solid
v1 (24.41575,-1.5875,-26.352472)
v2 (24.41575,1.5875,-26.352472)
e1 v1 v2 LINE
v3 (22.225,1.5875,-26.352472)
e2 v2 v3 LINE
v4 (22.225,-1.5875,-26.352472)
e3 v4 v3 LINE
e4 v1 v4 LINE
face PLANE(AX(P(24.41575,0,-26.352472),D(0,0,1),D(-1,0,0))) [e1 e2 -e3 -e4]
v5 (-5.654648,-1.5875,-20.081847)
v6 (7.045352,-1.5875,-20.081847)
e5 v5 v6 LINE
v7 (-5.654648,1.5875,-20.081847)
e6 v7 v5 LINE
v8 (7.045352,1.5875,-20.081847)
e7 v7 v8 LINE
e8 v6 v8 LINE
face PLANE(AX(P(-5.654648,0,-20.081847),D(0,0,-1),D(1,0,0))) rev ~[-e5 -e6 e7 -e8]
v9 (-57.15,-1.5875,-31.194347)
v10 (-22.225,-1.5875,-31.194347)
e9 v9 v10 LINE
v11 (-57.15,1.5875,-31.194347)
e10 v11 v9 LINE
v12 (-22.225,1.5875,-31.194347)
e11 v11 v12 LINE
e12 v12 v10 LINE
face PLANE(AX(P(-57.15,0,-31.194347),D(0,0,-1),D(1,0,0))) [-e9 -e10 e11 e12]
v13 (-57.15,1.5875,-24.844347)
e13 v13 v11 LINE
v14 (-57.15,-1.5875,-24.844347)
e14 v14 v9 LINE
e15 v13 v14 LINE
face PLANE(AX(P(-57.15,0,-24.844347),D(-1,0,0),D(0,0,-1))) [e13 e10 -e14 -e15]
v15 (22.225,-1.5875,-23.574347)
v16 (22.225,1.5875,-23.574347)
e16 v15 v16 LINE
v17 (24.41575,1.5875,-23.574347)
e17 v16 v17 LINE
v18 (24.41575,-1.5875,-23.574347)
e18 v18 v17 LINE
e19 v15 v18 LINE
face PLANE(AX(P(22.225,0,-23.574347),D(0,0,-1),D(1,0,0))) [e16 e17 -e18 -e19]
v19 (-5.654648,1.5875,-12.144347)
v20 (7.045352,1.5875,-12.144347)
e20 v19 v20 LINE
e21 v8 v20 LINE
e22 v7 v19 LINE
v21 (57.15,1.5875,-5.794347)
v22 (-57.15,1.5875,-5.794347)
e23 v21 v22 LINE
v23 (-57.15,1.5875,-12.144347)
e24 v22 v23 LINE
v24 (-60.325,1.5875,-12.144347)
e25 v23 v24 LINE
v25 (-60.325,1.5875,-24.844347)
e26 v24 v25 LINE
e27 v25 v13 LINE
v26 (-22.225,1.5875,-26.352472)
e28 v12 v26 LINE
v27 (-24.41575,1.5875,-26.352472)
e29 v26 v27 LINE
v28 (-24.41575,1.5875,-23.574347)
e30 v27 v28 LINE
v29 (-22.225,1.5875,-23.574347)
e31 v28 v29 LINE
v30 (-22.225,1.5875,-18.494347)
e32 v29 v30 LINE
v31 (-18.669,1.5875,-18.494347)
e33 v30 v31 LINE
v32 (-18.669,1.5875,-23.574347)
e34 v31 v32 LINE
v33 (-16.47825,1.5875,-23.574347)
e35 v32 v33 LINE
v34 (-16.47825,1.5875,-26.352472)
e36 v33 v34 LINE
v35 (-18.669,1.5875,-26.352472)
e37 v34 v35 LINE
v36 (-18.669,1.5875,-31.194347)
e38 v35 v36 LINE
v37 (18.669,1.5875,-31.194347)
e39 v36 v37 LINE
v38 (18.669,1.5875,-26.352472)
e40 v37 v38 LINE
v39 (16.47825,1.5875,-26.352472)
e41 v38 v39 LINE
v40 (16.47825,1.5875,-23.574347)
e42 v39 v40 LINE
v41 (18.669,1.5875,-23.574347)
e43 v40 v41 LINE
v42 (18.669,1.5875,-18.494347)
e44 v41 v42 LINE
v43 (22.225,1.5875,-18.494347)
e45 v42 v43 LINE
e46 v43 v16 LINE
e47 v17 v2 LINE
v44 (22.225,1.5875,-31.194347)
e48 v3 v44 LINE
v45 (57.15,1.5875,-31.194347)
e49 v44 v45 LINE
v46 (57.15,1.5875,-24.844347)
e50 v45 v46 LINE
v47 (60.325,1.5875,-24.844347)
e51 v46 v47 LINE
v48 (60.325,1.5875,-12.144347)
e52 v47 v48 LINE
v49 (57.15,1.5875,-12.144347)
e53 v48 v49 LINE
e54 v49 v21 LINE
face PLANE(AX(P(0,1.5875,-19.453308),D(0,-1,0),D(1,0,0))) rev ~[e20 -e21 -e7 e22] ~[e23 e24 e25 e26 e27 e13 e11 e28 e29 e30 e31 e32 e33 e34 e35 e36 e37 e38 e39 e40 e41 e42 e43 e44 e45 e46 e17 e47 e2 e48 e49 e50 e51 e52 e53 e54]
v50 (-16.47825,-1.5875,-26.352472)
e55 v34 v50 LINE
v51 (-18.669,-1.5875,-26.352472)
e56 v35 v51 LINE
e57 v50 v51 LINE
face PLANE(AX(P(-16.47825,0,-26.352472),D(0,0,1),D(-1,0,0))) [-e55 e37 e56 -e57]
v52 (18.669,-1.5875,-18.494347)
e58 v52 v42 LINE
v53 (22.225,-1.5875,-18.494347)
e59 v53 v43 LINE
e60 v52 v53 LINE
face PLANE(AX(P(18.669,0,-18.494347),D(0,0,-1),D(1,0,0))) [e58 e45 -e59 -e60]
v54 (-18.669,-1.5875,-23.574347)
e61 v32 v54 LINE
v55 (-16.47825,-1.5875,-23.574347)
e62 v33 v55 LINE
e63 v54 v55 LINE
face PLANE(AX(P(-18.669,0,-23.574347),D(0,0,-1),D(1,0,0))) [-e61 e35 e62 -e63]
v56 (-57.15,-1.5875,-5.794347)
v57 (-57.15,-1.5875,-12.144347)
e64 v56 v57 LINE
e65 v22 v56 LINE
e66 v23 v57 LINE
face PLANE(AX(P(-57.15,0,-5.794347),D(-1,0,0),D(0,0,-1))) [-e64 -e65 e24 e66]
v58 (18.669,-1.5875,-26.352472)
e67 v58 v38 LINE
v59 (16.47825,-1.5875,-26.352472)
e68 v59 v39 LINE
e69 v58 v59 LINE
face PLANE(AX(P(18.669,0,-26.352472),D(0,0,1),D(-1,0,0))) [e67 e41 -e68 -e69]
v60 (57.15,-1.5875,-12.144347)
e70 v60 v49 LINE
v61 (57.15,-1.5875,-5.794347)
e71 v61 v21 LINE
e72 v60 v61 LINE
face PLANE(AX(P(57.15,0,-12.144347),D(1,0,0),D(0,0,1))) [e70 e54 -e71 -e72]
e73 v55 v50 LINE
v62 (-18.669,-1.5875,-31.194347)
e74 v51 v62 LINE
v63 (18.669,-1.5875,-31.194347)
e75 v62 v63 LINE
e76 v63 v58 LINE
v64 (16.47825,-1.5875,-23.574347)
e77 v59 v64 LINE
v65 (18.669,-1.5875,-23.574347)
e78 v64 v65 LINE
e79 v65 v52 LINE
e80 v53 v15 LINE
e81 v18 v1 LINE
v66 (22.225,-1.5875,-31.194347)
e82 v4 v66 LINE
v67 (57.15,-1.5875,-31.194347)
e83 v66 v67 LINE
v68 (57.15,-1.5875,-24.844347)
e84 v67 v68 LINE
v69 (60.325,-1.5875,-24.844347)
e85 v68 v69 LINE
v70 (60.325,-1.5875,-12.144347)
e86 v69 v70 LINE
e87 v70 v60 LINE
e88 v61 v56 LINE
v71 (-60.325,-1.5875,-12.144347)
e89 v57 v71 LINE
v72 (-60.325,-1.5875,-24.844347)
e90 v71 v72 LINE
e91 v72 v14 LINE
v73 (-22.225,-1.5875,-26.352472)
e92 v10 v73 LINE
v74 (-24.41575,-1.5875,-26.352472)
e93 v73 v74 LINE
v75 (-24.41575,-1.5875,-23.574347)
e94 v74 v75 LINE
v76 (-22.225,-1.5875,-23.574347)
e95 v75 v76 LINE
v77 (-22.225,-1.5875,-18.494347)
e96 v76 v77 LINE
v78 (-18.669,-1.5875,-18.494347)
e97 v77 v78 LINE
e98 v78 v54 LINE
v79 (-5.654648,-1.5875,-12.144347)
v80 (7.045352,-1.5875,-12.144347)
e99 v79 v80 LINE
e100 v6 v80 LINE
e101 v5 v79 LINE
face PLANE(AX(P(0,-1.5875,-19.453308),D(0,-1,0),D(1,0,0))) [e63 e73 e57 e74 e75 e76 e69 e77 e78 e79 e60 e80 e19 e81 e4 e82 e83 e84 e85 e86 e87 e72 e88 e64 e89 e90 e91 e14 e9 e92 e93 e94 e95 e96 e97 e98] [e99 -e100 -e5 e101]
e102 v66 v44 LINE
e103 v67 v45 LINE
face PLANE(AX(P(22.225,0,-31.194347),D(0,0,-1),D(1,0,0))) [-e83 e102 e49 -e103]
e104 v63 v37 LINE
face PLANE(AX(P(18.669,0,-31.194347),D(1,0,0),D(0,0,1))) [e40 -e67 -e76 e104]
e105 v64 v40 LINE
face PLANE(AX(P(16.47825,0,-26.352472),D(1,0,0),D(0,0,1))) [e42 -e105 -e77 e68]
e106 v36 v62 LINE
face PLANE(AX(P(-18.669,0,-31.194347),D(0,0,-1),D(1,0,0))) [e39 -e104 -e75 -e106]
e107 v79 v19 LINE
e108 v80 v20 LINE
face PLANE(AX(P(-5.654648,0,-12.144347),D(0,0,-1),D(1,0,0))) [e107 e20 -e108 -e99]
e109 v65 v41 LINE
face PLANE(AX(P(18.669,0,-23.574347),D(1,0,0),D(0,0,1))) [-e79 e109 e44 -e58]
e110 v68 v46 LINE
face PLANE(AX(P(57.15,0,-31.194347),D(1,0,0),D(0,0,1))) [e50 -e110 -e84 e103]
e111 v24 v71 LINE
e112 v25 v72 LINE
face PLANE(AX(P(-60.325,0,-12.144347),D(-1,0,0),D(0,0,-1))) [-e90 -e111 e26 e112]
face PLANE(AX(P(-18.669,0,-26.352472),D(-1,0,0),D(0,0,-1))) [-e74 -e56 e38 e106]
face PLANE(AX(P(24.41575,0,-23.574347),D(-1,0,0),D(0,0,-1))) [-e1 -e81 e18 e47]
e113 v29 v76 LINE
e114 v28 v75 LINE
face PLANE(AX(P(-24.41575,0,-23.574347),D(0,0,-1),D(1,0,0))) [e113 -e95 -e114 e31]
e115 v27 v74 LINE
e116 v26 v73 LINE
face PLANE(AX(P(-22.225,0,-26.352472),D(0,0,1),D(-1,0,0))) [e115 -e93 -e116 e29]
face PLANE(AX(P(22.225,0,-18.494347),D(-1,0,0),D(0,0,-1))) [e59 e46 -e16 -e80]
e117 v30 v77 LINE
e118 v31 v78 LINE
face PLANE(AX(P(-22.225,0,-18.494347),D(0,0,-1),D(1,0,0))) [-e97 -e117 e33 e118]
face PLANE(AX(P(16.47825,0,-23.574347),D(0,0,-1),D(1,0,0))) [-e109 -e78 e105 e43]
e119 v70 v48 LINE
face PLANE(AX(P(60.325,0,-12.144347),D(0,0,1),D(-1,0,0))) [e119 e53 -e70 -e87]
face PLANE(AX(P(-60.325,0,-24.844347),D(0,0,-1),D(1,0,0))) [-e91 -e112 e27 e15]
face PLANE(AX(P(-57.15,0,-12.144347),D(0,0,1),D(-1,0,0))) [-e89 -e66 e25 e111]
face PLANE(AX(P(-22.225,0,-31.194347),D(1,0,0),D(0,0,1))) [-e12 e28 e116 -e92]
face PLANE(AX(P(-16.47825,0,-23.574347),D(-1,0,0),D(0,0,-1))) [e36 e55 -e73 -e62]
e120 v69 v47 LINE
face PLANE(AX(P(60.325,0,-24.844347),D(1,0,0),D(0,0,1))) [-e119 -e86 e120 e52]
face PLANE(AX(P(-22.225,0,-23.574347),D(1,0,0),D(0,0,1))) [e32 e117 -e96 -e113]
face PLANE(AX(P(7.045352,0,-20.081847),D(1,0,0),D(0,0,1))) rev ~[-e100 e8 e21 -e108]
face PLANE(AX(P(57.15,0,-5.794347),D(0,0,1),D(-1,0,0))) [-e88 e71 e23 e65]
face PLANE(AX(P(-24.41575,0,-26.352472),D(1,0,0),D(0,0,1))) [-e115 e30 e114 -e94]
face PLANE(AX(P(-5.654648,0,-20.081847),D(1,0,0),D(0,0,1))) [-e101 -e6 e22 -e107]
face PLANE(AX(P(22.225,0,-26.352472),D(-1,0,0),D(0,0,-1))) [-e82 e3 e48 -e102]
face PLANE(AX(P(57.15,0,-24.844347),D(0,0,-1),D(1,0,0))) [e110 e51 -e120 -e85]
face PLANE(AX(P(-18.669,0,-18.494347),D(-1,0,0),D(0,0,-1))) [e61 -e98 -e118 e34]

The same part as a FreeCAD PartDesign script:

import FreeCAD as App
import Part
import Sketcher

V = App.Vector
Q = App.Units.Quantity


def add_polygon(sketch, points):
    """Adds a closed chain of lines whose ends are joined by coincident constraints."""
    first, n = sketch.GeometryCount, len(points)
    for a, b in zip(points, points[1:] + points[:1]):
        sketch.addGeometry(Part.LineSegment(App.Vector(*a, 0), App.Vector(*b, 0)), False)
    for i in range(n):
        sketch.addConstraint(Sketcher.Constraint("Coincident", first + i, 2, first + (i + 1) % n, 1))

doc = App.newDocument("Part")
body = doc.addObject("PartDesign::Body", "Body")

sketch1 = doc.addObject("Sketcher::SketchObject", "Sketch")
body.addObject(sketch1)
sketch1.AttachmentSupport = (doc.XZ_Plane, [""])
sketch1.MapMode = "FlatFace"
add_polygon(sketch1, [(57.1, -5.8), (-57.1, -5.8), (-57.1, -12.1), (-60.3, -12.1), (-60.3, -24.8), (-57.1, -24.8), (-57.1, -31.2), (-22.2, -31.2), (-22.2, -26.4), (-24.4, -26.4), (-24.4, -23.6), (-22.2, -23.6), (-22.2, -18.5), (-18.7, -18.5), (-18.7, -23.6), (-16.5, -23.6), (-16.5, -26.4), (-18.7, -26.4), (-18.7, -31.2), (18.7, -31.2), (18.7, -26.4), (16.5, -26.4), (16.5, -23.6), (18.7, -23.6), (18.7, -18.5), (22.2, -18.5), (22.2, -23.6), (24.4, -23.6), (24.4, -26.4), (22.2, -26.4), (22.2, -31.2), (57.1, -31.2), (57.1, -24.8), (60.3, -24.8), (60.3, -12.1), (57.1, -12.1)])
add_polygon(sketch1, [(7, -20.1), (-5.7, -20.1), (-5.7, -12.1), (7, -12.1)])
sketch1.addConstraint([
    Sketcher.Constraint("Horizontal", 0),
    Sketcher.Constraint("Vertical", 1),
    Sketcher.Constraint("Horizontal", 2),
    Sketcher.Constraint("Vertical", 3),
    Sketcher.Constraint("Horizontal", 4),
    Sketcher.Constraint("Vertical", 5),
    Sketcher.Constraint("Horizontal", 6),
    Sketcher.Constraint("Vertical", 7),
    Sketcher.Constraint("Horizontal", 8),
    Sketcher.Constraint("Vertical", 9),
    Sketcher.Constraint("Horizontal", 10),
    Sketcher.Constraint("Vertical", 11),
    Sketcher.Constraint("Horizontal", 12),
    Sketcher.Constraint("Vertical", 13),
    Sketcher.Constraint("Horizontal", 14),
    Sketcher.Constraint("Vertical", 15),
    Sketcher.Constraint("Horizontal", 16),
    Sketcher.Constraint("Vertical", 17),
    Sketcher.Constraint("Horizontal", 18),
    Sketcher.Constraint("Vertical", 19),
    Sketcher.Constraint("Horizontal", 20),
    Sketcher.Constraint("Vertical", 21),
    Sketcher.Constraint("Horizontal", 22),
    Sketcher.Constraint("Vertical", 23),
    Sketcher.Constraint("Horizontal", 24),
    Sketcher.Constraint("Vertical", 25),
    Sketcher.Constraint("Horizontal", 26),
    Sketcher.Constraint("Vertical", 27),
    Sketcher.Constraint("Horizontal", 28),
    Sketcher.Constraint("Vertical", 29),
    Sketcher.Constraint("Horizontal", 30),
    Sketcher.Constraint("Vertical", 31),
    Sketcher.Constraint("Horizontal", 32),
    Sketcher.Constraint("Vertical", 33),
    Sketcher.Constraint("Horizontal", 34),
    Sketcher.Constraint("Vertical", 35),
    Sketcher.Constraint("Horizontal", 36),
    Sketcher.Constraint("Vertical", 37),
    Sketcher.Constraint("Horizontal", 38),
    Sketcher.Constraint("Vertical", 39),
    Sketcher.Constraint("Symmetric", 16, 2, 19, 2, -2),
    Sketcher.Constraint("Symmetric", 14, 2, 21, 2, -2),
    Sketcher.Constraint("Symmetric", 12, 2, 23, 2, -2),
    Sketcher.Constraint("Symmetric", 10, 2, 25, 2, -2),
    Sketcher.Constraint("Symmetric", 8, 2, 27, 2, -2),
    Sketcher.Constraint("Symmetric", 6, 2, 29, 2, -2),
    Sketcher.Constraint("Symmetric", 4, 2, 31, 2, -2),
    Sketcher.Constraint("Symmetric", 2, 2, 33, 2, -2),
    Sketcher.Constraint("Horizontal", 10, 2, 13, 2),
    Sketcher.Constraint("Horizontal", 8, 2, 15, 2),
    Sketcher.Constraint("Horizontal", 6, 2, 17, 2),
    Sketcher.Constraint("Horizontal", 34, 2, 37, 2),
    Sketcher.Constraint("Vertical", 1, 2, 4, 2),
    Sketcher.Constraint("Vertical", 7, 2, 10, 2),
    Sketcher.Constraint("Vertical", 13, 2, 16, 2),
    Sketcher.Constraint("Vertical", 31, 2, 34, 2),
    Sketcher.Constraint("Equal", 10, 14),
    Sketcher.Constraint("Equal", 38, 3),
    Sketcher.Constraint("Equal", 1, 5),
    Sketcher.Constraint("DistanceX", 0, 2, 0, 1, Q("4.5 in")),
    Sketcher.Constraint("DistanceX", 36, 2, 36, 1, Q("0.5 in")),
    Sketcher.Constraint("DistanceY", 11, 1, 11, 2, Q("0.2 in")),
    Sketcher.Constraint("DistanceY", 5, 2, 0, 2, Q("1 in")),
    Sketcher.Constraint("DistanceX", 12, 1, 12, 2, Q("0.14 in")),
    Sketcher.Constraint("DistanceX", 18, 1, 18, 2, Q("1.47 in")),
    Sketcher.Constraint("DistanceX", 3, 2, 6, 2, Q("1.5 in")),
    Sketcher.Constraint("DistanceY", 6, 2, 9, 2, Q("0.3 in")),
    Sketcher.Constraint("DistanceY", 9, 1, 9, 2, Q("0.109375 in")),
    Sketcher.Constraint("DistanceY", 37, 1, 37, 2, Q("0.3125 in")),
    Sketcher.Constraint("DistanceX", 15, 2, 20, 2, Q("1.2975 in")),
    Sketcher.Constraint("DistanceX", 14, 2, 36, 2, 10.823602),
    Sketcher.Constraint("DistanceY", 7, 2, -1, 1, 26.352472),
])
pad1 = doc.addObject("PartDesign::Pad", "Pad")
body.addObject(pad1)
pad1.Profile = sketch1
pad1.Length = Q("0.125 in")
pad1.Midplane = True

doc.recompute()
